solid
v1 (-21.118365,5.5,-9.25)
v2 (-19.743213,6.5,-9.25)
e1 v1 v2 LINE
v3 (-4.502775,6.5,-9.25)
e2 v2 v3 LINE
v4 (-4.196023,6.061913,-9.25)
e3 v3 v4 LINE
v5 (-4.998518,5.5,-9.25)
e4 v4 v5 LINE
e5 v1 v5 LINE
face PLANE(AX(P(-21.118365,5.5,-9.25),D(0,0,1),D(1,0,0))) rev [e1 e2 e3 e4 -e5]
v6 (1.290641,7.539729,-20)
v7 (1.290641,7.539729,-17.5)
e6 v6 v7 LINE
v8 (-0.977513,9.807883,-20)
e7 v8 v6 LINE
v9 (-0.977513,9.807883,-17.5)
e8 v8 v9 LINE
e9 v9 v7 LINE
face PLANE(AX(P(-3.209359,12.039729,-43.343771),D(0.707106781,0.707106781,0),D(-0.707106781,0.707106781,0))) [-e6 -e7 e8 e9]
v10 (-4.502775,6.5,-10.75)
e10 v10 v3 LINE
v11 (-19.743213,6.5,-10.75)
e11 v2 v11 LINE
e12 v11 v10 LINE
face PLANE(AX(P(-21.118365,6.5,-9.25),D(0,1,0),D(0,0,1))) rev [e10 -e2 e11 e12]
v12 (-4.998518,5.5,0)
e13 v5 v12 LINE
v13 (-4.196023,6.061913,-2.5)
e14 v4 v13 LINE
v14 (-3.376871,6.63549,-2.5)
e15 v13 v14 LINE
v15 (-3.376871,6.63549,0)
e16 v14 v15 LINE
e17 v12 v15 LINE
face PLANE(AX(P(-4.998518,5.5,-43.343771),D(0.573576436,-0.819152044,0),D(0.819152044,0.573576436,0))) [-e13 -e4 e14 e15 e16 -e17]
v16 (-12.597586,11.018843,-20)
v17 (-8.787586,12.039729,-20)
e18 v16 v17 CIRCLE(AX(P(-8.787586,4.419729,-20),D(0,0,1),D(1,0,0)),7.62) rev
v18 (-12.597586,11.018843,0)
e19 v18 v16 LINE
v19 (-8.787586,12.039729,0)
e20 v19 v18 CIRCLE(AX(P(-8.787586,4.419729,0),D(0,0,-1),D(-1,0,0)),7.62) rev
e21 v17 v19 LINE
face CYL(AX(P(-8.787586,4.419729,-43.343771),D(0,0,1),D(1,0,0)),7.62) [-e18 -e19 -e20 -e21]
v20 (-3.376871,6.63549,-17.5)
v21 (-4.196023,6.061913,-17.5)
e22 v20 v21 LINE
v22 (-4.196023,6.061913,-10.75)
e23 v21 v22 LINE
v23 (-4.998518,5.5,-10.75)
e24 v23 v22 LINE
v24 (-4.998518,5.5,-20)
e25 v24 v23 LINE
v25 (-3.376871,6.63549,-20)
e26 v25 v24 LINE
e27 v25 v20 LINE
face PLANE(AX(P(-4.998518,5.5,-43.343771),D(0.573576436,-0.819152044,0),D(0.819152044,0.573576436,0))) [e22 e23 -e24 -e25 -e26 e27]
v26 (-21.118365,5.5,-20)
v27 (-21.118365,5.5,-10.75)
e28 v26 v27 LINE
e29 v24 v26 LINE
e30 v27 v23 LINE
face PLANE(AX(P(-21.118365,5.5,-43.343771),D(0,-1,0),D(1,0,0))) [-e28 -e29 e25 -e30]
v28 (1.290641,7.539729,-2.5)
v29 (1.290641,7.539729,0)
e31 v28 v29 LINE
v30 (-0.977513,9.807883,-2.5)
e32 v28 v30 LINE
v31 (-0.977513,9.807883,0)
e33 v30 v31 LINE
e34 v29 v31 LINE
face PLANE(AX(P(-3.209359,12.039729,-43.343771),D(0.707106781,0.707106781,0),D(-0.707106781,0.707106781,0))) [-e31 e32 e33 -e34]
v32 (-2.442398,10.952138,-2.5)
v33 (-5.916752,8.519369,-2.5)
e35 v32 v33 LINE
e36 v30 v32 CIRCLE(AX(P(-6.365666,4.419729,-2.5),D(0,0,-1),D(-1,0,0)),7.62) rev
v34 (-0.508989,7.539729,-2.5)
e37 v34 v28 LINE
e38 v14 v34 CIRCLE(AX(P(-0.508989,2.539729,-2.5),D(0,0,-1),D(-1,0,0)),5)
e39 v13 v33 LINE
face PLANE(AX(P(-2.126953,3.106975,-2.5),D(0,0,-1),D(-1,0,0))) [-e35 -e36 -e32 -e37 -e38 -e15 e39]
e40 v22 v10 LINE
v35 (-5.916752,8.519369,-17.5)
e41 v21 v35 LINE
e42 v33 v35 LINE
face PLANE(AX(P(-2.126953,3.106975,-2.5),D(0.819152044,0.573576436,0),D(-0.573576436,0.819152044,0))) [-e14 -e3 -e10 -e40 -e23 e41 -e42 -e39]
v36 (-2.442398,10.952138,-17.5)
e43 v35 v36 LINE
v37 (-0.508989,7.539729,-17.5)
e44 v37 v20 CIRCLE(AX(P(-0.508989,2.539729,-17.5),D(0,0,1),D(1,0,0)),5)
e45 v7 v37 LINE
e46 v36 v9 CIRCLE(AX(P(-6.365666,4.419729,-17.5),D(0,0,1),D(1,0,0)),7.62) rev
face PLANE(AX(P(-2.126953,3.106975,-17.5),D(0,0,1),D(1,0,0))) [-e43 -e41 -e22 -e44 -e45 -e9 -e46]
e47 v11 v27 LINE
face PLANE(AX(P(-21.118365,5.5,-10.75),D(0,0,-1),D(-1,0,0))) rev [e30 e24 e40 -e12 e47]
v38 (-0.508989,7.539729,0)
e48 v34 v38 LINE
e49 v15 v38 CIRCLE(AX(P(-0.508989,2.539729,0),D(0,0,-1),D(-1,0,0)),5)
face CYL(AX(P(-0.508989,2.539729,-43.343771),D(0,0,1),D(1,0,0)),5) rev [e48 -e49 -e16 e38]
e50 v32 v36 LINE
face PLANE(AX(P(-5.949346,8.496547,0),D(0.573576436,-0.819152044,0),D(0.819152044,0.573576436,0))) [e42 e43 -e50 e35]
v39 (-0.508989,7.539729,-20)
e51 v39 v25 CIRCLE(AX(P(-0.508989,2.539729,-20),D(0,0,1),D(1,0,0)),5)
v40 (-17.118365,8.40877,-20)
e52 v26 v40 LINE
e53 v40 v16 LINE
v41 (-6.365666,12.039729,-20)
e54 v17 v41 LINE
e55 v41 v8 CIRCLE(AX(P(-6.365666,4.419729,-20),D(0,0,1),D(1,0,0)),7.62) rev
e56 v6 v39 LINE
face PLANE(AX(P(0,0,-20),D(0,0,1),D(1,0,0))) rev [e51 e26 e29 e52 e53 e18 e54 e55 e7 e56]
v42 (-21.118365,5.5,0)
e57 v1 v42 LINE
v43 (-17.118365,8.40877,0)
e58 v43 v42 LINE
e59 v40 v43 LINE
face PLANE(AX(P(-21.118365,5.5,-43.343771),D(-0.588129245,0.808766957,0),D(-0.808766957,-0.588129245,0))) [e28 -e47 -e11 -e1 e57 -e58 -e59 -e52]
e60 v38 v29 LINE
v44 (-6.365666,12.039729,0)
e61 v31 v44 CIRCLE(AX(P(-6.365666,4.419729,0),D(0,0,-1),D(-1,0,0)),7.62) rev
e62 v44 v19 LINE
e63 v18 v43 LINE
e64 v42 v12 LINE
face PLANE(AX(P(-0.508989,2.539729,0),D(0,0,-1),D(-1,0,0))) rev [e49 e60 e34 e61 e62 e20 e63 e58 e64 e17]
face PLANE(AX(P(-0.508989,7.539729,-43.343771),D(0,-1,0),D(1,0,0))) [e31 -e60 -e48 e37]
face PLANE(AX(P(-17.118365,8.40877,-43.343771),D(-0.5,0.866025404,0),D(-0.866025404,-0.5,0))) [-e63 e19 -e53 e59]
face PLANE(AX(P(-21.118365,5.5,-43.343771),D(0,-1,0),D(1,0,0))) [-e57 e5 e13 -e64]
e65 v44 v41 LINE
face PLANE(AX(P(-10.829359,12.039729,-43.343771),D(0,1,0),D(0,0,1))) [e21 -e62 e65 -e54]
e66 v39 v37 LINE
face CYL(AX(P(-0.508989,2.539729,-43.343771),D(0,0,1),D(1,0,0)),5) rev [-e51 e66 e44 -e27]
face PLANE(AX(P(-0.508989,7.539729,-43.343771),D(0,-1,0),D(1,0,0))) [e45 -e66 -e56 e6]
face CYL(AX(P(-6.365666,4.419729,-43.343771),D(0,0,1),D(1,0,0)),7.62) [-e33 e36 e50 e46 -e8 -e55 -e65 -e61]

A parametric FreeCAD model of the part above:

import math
import FreeCAD as App
import Part
import Sketcher
from FreeCAD import Vector
Q = App.Units.Quantity


def edges_at(feature, points):
    """Names of the edges that pass closest to the given points."""
    edges = feature.Shape.Edges
    near = lambda p: min(range(len(edges)), key=lambda i: edges[i].distToShape(Part.Vertex(*p))[0])
    return sorted({f"Edge{near(p) + 1}" for p in points})

doc = App.newDocument("Part")
body = doc.addObject("PartDesign::Body", "Body")

sketch1 = body.newObject("Sketcher::SketchObject", "Sketch")
sketch1.AttachmentSupport = (doc.getObject("XY_Plane"), [""])
sketch1.MapMode = "FlatFace"
sketch1.addGeometry([
    Part.LineSegment(Vector(-17.1, 8.4, 0), Vector(-21.1, 5.5, 0)),
    Part.LineSegment(Vector(-21.1, 5.5, 0), Vector(-5, 5.5, 0)),
    Part.LineSegment(Vector(-5, 5.5, 0), Vector(-3.4, 6.6, 0)),
    Part.ArcOfCircle(Part.Circle(Vector(-0.5, 2.5, 0), Vector(0, 0, 1), 5), math.radians(90), math.radians(125)),
    Part.LineSegment(Vector(-0.5, 7.5, 0), Vector(1.3, 7.5, 0)),
    Part.LineSegment(Vector(1.3, 7.5, 0), Vector(-3.2, 12, 0)),
    Part.LineSegment(Vector(-3.2, 12, 0), Vector(-10.8, 12, 0)),
    Part.LineSegment(Vector(-10.8, 12, 0), Vector(-17.1, 8.4, 0)),
], False)
sketch1.addConstraint([
    Sketcher.Constraint("Coincident", 0, 2, 1, 1),
    Sketcher.Constraint("Coincident", 1, 2, 2, 1),
    Sketcher.Constraint("Tangent", 2, 2, 3, 2),
    Sketcher.Constraint("Tangent", 3, 1, 4, 1),
    Sketcher.Constraint("Coincident", 4, 2, 5, 1),
    Sketcher.Constraint("Coincident", 5, 2, 6, 1),
    Sketcher.Constraint("Coincident", 6, 2, 7, 1),
    Sketcher.Constraint("Coincident", 7, 2, 0, 1),
    Sketcher.Constraint("Horizontal", 1),
    Sketcher.Constraint("Horizontal", 4),
    Sketcher.Constraint("Horizontal", 6),
    Sketcher.Constraint("Radius", 3, 5.0),
    Sketcher.Constraint("Angle", 2, Q("35 deg")),
    Sketcher.Constraint("Angle", 5, Q("135 deg")),
    Sketcher.Constraint("Angle", 7, Q("-150 deg")),
    Sketcher.Constraint("DistanceX", 0, 2, 7, 2, 4.0),
    Sketcher.Constraint("DistanceX", 6, 2, 6, 1, 7.62),
    Sketcher.Constraint("DistanceY", -1, 1, 0, 2, 5.5),
    Sketcher.Constraint("DistanceY", 3, 1, 5, 2, 4.5),
    Sketcher.Constraint("Distance", 0, 4.9458),
    Sketcher.Constraint("DistanceX", 4, 1, 4, 2, 1.79963),
    Sketcher.Constraint("Distance", 7, 7.261919),
    Sketcher.Constraint("DistanceX", 3, 3, -1, 1, 0.508989),
])
pad1 = body.newObject("PartDesign::Pad", "Pad")
pad1.Profile = sketch1
pad1.Length = 20
pad1.Reversed = True
doc.recompute()

fillet = body.newObject("PartDesign::Fillet", "Fillet")
fillet.Base = (pad1, edges_at(pad1, [(-3.209, 12.04, -10), (-10.829, 12.04, -10)]))
fillet.Radius = 7.62

sketch2 = body.newObject("Sketcher::SketchObject", "Sketch001")
sketch2.Placement = App.Placement(Vector(-4.228617, 6.039091, 0), App.Rotation(Vector(0.819152044, 0.573576436, 0), Vector(0, 0, 0.999999999), Vector(0.573576436, -0.819152044, 0), "ZXY"))
sketch2.addGeometry([
    Part.LineSegment(Vector(0, -2, 0), Vector(0, -17, 0)),
    Part.LineSegment(Vector(0, -17, 0), Vector(15, -17, 0)),
    Part.LineSegment(Vector(15, -17, 0), Vector(15, -2, 0)),
    Part.LineSegment(Vector(15, -2, 0), Vector(0, -2, 0)),
], False)
sketch2.addConstraint([
    Sketcher.Constraint("Coincident", 0, 2, 1, 1),
    Sketcher.Constraint("Coincident", 1, 2, 2, 1),
    Sketcher.Constraint("Coincident", 2, 2, 3, 1),
    Sketcher.Constraint("Coincident", 3, 2, 0, 1),
    Sketcher.Constraint("Vertical", 0),
    Sketcher.Constraint("Horizontal", 1),
    Sketcher.Constraint("Vertical", 2),
    Sketcher.Constraint("Horizontal", 3),
    Sketcher.Constraint("DistanceY", 0, 2, 0, 1, 15.0),
    Sketcher.Constraint("DistanceY", 0, 2, -1, 1, 17.5),
    Sketcher.Constraint("DistanceX", 1, 1, 1, 2, 14.641635),
    Sketcher.Constraint("DistanceX", -1, 1, 0, 2, 0.03979),
])
pocket1 = body.newObject("PartDesign::Pocket", "Pocket")
pocket1.Profile = sketch2
pocket1.Type = "TwoLengths"
pocket1.Length = 4.607314
pocket1.Length2 = 3
pocket1.Reversed = True

sketch3 = body.newObject("Sketcher::SketchObject", "Sketch002")
sketch3.AttachmentSupport = (doc.getObject("YZ_Plane"), [""])
sketch3.MapMode = "FlatFace"
sketch3.addGeometry([
    Part.LineSegment(Vector(6.5, -9.2, 0), Vector(5.5, -9.2, 0)),
    Part.LineSegment(Vector(5.5, -9.2, 0), Vector(5.5, -10.8, 0)),
    Part.LineSegment(Vector(5.5, -10.8, 0), Vector(6.5, -10.8, 0)),
    Part.LineSegment(Vector(6.5, -10.8, 0), Vector(6.5, -9.2, 0)),
], False)
sketch3.addConstraint([
    Sketcher.Constraint("Coincident", 0, 2, 1, 1),
    Sketcher.Constraint("Coincident", 1, 2, 2, 1),
    Sketcher.Constraint("Coincident", 2, 2, 3, 1),
    Sketcher.Constraint("Coincident", 3, 2, 0, 1),
    Sketcher.Constraint("Horizontal", 0),
    Sketcher.Constraint("Vertical", 1),
    Sketcher.Constraint("Horizontal", 2),
    Sketcher.Constraint("Vertical", 3),
    Sketcher.Constraint("DistanceX", 0, 2, 0, 1, 1.0),
    Sketcher.Constraint("DistanceY", 1, 2, 1, 1, 1.5),
    Sketcher.Constraint("DistanceX", -1, 1, 0, 2, 5.5),
    Sketcher.Constraint("DistanceY", 0, 2, -1, 1, 9.25),
])
pocket2 = body.newObject("PartDesign::Pocket", "Pocket001")
pocket2.Profile = sketch3
pocket2.Type = "ThroughAll"

doc.recompute()
